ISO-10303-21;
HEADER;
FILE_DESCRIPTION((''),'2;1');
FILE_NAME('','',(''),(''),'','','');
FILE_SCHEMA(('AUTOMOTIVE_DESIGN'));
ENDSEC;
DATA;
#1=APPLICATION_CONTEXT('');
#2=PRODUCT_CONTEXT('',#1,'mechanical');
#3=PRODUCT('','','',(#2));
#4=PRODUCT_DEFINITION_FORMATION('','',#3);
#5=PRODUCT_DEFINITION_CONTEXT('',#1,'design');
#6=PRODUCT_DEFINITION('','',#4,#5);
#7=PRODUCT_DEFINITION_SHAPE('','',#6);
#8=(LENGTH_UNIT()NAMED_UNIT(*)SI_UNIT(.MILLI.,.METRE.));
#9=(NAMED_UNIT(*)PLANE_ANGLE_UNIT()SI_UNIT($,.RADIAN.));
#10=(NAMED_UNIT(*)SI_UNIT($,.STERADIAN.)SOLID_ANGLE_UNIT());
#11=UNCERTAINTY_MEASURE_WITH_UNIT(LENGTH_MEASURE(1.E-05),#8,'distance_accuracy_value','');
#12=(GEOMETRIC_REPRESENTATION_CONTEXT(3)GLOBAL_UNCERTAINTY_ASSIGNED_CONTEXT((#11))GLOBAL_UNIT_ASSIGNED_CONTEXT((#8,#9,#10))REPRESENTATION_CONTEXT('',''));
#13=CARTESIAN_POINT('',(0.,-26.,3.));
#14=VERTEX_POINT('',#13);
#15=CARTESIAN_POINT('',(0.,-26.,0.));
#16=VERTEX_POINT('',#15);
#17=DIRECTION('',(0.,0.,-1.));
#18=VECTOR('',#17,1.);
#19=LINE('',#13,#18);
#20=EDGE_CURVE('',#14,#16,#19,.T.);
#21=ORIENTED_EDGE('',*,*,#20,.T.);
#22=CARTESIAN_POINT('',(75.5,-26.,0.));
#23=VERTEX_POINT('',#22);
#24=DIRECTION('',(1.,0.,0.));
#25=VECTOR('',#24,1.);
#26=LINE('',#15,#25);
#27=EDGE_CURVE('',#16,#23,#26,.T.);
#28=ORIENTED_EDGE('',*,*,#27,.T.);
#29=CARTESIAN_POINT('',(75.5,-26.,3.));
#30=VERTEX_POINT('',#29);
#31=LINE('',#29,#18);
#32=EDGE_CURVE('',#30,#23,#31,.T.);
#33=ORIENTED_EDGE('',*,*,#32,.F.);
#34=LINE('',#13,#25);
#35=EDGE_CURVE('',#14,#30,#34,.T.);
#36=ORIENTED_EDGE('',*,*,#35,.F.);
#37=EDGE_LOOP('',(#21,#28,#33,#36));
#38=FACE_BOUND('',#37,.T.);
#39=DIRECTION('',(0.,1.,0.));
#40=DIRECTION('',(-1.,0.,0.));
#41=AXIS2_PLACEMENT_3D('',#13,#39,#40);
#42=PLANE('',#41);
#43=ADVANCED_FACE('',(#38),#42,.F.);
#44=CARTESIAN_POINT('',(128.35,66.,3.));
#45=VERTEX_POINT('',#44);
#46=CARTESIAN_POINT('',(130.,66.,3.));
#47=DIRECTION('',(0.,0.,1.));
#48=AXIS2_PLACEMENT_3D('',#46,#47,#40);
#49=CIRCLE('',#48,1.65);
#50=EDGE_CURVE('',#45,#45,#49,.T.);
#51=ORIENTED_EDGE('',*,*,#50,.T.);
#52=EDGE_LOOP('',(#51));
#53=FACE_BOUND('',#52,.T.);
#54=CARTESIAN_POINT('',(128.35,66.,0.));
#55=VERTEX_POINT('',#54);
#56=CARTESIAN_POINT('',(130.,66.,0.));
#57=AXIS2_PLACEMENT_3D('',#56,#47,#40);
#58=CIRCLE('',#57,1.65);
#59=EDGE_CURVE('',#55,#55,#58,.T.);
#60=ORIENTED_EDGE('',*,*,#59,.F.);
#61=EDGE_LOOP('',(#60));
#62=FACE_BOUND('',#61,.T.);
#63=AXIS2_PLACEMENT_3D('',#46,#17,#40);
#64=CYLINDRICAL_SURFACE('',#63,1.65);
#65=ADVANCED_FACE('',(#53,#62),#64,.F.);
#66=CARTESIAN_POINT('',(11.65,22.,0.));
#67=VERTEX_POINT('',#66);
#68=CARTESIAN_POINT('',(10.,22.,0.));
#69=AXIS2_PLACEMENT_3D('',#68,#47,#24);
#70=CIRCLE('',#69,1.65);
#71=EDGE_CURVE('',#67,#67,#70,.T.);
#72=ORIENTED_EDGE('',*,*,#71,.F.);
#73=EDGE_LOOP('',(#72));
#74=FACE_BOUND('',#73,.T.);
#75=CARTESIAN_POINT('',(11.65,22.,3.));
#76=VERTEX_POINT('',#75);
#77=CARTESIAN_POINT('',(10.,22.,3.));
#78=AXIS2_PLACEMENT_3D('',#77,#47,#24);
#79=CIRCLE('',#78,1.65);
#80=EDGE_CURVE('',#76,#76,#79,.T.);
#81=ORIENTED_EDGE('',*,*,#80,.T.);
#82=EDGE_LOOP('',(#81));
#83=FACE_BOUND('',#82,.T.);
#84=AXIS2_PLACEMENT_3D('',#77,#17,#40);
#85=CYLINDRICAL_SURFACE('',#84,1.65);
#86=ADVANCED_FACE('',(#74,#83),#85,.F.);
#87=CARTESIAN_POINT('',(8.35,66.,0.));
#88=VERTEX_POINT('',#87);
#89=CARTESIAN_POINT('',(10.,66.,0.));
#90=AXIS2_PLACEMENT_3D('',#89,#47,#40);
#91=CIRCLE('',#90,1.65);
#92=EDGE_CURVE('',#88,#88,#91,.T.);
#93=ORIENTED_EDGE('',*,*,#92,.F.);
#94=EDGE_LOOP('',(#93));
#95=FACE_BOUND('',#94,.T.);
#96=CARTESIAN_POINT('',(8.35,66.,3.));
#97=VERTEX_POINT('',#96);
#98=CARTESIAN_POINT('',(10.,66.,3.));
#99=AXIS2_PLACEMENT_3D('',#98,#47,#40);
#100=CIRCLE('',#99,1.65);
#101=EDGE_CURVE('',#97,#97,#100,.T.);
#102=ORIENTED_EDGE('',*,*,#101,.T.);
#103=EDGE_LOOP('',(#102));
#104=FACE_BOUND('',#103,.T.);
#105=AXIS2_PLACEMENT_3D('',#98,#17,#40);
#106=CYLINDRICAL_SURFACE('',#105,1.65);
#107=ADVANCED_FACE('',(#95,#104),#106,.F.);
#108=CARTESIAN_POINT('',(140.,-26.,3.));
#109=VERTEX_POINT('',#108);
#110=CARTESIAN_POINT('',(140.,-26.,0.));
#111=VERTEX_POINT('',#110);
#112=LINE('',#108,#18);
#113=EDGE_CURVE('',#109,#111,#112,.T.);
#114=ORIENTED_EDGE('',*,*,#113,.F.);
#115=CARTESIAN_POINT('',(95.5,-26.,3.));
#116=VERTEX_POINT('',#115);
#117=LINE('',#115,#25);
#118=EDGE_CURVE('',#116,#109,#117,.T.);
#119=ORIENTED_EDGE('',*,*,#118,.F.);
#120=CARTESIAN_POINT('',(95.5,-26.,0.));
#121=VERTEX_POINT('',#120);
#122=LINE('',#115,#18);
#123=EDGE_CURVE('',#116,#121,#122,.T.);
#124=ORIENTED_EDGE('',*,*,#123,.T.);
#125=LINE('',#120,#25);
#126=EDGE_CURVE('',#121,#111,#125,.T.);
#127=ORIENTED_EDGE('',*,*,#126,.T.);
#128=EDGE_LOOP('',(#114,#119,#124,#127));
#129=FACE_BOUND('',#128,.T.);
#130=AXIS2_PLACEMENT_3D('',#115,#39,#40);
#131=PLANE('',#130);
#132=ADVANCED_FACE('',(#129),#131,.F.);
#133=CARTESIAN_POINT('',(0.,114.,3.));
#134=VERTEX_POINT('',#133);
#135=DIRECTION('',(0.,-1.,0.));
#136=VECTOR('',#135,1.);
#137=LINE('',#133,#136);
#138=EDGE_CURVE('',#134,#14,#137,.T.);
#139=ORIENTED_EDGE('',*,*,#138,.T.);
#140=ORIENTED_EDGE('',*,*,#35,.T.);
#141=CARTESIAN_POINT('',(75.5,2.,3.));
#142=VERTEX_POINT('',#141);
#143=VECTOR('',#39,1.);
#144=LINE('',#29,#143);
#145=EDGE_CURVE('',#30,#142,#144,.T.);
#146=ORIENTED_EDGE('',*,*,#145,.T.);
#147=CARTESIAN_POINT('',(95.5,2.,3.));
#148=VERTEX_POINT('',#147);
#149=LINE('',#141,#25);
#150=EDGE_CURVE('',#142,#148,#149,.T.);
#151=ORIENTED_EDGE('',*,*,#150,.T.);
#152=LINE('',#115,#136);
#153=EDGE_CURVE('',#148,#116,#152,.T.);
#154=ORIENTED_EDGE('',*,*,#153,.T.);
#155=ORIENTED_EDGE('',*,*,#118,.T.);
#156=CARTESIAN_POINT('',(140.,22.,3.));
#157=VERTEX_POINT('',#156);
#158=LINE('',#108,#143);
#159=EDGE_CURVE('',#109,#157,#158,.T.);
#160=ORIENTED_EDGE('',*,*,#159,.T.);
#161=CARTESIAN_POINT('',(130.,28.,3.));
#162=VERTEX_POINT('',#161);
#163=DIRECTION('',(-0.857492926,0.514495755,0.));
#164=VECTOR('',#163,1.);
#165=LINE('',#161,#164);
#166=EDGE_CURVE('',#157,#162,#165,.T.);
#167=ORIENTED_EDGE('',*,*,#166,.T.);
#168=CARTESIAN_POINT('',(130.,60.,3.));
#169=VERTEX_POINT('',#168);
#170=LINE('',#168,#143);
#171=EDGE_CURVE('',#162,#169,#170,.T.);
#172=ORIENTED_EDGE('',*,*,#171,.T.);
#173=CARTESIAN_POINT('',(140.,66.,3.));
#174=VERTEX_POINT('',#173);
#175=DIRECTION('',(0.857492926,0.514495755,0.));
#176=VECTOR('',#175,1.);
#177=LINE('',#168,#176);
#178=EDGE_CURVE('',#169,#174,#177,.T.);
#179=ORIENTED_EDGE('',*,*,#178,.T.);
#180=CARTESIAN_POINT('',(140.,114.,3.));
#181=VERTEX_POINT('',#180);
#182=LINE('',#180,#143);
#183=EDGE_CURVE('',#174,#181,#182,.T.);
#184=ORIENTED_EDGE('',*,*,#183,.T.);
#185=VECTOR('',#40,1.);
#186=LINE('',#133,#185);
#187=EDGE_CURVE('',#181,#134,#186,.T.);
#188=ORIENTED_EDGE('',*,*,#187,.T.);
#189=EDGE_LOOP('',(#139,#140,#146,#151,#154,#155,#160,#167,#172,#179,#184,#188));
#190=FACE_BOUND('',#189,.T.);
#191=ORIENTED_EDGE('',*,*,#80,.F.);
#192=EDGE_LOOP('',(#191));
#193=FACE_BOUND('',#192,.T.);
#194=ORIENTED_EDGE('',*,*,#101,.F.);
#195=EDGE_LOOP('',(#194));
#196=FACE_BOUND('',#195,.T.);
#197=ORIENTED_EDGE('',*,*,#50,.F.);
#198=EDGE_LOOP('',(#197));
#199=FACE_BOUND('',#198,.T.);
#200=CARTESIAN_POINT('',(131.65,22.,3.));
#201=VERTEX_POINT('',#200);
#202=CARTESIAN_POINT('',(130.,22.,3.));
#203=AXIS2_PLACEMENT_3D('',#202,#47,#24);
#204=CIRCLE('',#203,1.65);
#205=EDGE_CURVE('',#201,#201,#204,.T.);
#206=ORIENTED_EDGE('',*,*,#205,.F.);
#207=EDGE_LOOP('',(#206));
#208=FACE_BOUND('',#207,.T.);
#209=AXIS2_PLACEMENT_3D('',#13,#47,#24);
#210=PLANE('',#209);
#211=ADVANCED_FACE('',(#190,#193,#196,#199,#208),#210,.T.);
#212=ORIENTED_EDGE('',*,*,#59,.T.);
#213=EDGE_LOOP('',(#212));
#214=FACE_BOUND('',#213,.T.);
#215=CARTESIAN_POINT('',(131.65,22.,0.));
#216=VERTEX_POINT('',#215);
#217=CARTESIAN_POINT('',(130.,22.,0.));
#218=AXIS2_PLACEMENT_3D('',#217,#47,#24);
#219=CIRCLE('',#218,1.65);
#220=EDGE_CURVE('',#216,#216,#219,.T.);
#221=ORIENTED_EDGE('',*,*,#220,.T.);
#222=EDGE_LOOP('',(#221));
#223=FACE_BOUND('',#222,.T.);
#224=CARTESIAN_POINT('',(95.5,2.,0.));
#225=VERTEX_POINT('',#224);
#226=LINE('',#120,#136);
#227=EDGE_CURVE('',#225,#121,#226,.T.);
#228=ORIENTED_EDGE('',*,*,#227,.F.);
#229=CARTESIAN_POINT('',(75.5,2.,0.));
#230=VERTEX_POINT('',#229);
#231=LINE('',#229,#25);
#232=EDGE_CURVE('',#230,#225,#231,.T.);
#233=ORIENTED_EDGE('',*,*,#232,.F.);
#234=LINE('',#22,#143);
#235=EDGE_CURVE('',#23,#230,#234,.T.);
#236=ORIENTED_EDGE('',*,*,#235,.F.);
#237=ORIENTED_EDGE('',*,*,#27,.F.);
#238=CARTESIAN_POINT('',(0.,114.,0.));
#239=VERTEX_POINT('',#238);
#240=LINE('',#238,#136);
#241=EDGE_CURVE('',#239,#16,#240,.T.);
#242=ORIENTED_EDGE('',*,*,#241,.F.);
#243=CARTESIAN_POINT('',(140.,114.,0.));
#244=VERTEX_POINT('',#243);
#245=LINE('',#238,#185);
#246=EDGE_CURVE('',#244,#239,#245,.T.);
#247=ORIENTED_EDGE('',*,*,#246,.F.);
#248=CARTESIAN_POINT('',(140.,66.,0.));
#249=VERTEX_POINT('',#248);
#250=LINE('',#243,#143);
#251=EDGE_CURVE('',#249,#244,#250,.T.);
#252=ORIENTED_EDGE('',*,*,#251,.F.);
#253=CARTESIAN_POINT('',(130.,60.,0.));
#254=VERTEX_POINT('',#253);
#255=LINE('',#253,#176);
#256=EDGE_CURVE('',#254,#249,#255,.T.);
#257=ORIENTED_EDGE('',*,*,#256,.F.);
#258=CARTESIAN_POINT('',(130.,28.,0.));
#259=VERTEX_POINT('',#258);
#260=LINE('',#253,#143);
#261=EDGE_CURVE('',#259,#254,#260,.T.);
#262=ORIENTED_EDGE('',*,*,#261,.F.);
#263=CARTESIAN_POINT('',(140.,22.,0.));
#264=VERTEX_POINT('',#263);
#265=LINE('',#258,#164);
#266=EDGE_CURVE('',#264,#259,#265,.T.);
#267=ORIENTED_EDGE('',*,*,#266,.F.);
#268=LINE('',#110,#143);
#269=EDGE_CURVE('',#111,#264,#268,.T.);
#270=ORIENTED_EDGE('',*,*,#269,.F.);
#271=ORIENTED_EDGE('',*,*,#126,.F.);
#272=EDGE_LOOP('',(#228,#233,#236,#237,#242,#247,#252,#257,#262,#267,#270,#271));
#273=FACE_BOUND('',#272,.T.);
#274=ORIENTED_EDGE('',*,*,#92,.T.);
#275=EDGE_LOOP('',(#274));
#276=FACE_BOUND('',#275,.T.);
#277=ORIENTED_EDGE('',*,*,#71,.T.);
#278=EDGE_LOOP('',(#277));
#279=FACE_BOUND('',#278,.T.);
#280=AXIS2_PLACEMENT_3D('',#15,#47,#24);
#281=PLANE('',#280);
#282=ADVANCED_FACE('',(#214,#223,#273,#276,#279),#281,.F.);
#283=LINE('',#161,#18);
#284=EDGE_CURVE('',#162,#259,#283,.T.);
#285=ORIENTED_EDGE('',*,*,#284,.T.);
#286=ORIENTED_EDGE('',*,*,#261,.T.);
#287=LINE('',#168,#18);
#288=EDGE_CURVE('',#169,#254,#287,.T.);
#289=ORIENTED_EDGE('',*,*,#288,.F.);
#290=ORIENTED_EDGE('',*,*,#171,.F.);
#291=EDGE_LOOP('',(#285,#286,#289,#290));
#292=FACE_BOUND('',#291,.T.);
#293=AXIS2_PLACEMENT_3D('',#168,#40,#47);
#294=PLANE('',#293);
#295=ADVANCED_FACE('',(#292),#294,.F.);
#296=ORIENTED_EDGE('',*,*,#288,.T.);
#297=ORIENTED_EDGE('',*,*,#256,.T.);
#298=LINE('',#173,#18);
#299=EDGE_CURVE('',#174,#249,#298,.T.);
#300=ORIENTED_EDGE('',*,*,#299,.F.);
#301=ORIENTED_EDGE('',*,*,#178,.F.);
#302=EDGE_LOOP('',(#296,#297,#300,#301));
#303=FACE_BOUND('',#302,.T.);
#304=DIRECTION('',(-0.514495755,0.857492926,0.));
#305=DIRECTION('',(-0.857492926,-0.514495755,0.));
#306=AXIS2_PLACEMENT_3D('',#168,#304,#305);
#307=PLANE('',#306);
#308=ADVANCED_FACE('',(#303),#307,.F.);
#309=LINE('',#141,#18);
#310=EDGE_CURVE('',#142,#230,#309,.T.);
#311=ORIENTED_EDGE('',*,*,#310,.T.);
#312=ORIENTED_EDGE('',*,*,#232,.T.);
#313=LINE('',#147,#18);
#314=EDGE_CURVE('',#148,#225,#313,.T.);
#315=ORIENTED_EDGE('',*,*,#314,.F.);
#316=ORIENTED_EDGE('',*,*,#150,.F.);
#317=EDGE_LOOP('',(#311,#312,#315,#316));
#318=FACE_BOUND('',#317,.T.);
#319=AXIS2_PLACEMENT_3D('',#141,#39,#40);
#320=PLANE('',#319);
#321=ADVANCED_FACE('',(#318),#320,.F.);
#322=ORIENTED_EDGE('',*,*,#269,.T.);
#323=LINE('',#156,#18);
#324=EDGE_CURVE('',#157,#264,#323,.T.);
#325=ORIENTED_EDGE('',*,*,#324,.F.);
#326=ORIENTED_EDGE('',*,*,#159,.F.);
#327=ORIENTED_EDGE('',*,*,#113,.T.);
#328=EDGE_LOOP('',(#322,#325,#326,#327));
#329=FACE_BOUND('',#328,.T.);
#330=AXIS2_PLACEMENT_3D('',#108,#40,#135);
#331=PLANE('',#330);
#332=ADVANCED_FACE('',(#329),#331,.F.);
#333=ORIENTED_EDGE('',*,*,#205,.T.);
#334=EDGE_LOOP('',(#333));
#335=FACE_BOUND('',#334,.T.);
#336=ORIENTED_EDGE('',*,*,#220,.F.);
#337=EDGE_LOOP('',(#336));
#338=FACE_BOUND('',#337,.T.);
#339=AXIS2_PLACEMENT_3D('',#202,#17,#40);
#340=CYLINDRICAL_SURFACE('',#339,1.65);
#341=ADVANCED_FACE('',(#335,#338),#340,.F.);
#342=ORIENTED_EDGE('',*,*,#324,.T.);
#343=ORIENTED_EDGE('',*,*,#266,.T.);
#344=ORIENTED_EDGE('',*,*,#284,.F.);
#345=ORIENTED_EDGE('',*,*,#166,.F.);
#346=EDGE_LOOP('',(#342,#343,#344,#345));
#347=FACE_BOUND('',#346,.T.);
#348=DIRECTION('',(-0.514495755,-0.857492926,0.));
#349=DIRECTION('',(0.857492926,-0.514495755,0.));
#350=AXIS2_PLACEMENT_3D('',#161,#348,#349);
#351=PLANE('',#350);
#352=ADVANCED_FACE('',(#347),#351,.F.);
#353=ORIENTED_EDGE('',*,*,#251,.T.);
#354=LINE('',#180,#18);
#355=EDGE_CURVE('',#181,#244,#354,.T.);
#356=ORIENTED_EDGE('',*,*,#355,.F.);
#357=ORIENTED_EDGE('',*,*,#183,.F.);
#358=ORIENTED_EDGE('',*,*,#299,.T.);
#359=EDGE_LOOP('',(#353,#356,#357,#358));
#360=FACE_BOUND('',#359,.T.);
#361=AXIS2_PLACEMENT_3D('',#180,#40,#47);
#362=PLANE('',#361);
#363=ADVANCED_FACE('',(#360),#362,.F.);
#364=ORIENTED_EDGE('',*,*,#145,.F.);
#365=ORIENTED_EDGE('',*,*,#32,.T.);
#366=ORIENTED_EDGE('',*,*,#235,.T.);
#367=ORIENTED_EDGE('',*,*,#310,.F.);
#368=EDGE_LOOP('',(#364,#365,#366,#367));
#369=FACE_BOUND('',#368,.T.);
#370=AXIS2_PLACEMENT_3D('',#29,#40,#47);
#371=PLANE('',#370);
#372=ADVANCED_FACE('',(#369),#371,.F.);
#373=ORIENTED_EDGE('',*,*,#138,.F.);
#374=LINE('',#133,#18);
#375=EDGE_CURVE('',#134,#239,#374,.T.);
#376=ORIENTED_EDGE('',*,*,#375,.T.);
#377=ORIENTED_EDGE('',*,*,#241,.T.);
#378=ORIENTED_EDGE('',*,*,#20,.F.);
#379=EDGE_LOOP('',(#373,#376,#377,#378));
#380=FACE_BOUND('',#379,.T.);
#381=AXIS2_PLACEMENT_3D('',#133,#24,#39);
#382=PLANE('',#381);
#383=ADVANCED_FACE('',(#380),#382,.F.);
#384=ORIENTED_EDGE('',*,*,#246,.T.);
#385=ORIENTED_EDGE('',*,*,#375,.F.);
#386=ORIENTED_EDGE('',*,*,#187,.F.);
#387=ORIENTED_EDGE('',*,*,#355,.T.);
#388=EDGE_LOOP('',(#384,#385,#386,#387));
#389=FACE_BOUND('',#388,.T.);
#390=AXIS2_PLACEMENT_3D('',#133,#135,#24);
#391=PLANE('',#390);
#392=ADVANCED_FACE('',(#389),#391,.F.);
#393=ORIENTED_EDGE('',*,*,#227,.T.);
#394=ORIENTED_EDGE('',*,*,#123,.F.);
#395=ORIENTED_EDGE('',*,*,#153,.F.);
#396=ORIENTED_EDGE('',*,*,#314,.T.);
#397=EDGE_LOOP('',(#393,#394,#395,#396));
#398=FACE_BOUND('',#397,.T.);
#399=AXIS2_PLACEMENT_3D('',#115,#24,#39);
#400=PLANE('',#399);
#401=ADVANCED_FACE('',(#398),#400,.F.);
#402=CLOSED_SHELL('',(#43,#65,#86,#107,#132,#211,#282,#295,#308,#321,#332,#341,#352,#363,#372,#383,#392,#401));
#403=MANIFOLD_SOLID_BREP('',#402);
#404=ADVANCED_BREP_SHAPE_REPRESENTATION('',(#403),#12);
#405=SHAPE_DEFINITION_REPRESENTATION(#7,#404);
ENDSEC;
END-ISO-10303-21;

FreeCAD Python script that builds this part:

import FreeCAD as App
import Part
import Sketcher
Q = App.Units.Quantity

doc = App.newDocument("Part")
body = doc.addObject("PartDesign::Body", "Body")

# Sketch on XY plane
sketch1 = body.newObject("Sketcher::SketchObject", "Sketch")
sketch1.AttachmentSupport = (doc.getObject("XY_Plane"), [""])
sketch1.MapMode = "FlatFace"
sketch1.addGeometry(Part.LineSegment(App.Vector(0, -26, 0), App.Vector(75.5, -26, 0)), False)
sketch1.addGeometry(Part.LineSegment(App.Vector(75.5, -26, 0), App.Vector(75.5, 2, 0)), False)
sketch1.addGeometry(Part.LineSegment(App.Vector(75.5, 2, 0), App.Vector(95.5, 2, 0)), False)
sketch1.addGeometry(Part.LineSegment(App.Vector(95.5, 2, 0), App.Vector(95.5, -26, 0)), False)
sketch1.addGeometry(Part.LineSegment(App.Vector(95.5, -26, 0), App.Vector(140, -26, 0)), False)
sketch1.addGeometry(Part.LineSegment(App.Vector(140, -26, 0), App.Vector(140, 22, 0)), False)
sketch1.addGeometry(Part.LineSegment(App.Vector(140, 22, 0), App.Vector(130, 28, 0)), False)
sketch1.addGeometry(Part.LineSegment(App.Vector(130, 28, 0), App.Vector(130, 60, 0)), False)
sketch1.addGeometry(Part.LineSegment(App.Vector(130, 60, 0), App.Vector(140, 66, 0)), False)
sketch1.addGeometry(Part.LineSegment(App.Vector(140, 66, 0), App.Vector(140, 114, 0)), False)
sketch1.addGeometry(Part.LineSegment(App.Vector(140, 114, 0), App.Vector(0, 114, 0)), False)
sketch1.addGeometry(Part.LineSegment(App.Vector(0, 114, 0), App.Vector(0, -26, 0)), False)
sketch1.addGeometry(Part.Circle(App.Vector(10, 22, 0), App.Vector(0, 0, 1), 1.65), False)
sketch1.addGeometry(Part.Circle(App.Vector(130, 22, 0), App.Vector(0, 0, 1), 1.65), False)
sketch1.addGeometry(Part.Circle(App.Vector(10, 66, 0), App.Vector(0, 0, 1), 1.65), False)
sketch1.addGeometry(Part.Circle(App.Vector(130, 66, 0), App.Vector(0, 0, 1), 1.65), False)
sketch1.addConstraint(Sketcher.Constraint("Coincident", 0, 2, 1, 1))
sketch1.addConstraint(Sketcher.Constraint("Coincident", 1, 2, 2, 1))
sketch1.addConstraint(Sketcher.Constraint("Coincident", 2, 2, 3, 1))
sketch1.addConstraint(Sketcher.Constraint("Coincident", 3, 2, 4, 1))
sketch1.addConstraint(Sketcher.Constraint("Coincident", 4, 2, 5, 1))
sketch1.addConstraint(Sketcher.Constraint("Coincident", 5, 2, 6, 1))
sketch1.addConstraint(Sketcher.Constraint("Coincident", 6, 2, 7, 1))
sketch1.addConstraint(Sketcher.Constraint("Coincident", 7, 2, 8, 1))
sketch1.addConstraint(Sketcher.Constraint("Coincident", 8, 2, 9, 1))
sketch1.addConstraint(Sketcher.Constraint("Coincident", 9, 2, 10, 1))
sketch1.addConstraint(Sketcher.Constraint("Coincident", 10, 2, 11, 1))
sketch1.addConstraint(Sketcher.Constraint("Coincident", 11, 2, 0, 1))
sketch1.addConstraint(Sketcher.Constraint("Horizontal", 0))
sketch1.addConstraint(Sketcher.Constraint("Vertical", 1))
sketch1.addConstraint(Sketcher.Constraint("Horizontal", 2))
sketch1.addConstraint(Sketcher.Constraint("Vertical", 3))
sketch1.addConstraint(Sketcher.Constraint("Horizontal", 4))
sketch1.addConstraint(Sketcher.Constraint("Vertical", 5))
sketch1.addConstraint(Sketcher.Constraint("Vertical", 7))
sketch1.addConstraint(Sketcher.Constraint("Vertical", 9))
sketch1.addConstraint(Sketcher.Constraint("Horizontal", 10))
sketch1.addConstraint(Sketcher.Constraint("Vertical", 11))
sketch1.addConstraint(Sketcher.Constraint("Equal", 12, 13))
sketch1.addConstraint(Sketcher.Constraint("Equal", 13, 14))
sketch1.addConstraint(Sketcher.Constraint("Equal", 14, 15))
sketch1.addConstraint(Sketcher.Constraint("PointOnObject", 10, 2, -2))
sketch1.addConstraint(Sketcher.Constraint("Horizontal", 12, 3, 13, 3))
sketch1.addConstraint(Sketcher.Constraint("Horizontal", 14, 3, 15, 3))
sketch1.addConstraint(Sketcher.Constraint("Horizontal", 0, 2, 3, 2))
sketch1.addConstraint(Sketcher.Constraint("Horizontal", 13, 3, 5, 2))
sketch1.addConstraint(Sketcher.Constraint("Horizontal", 15, 3, 8, 2))
sketch1.addConstraint(Sketcher.Constraint("Vertical", 12, 3, 14, 3))
sketch1.addConstraint(Sketcher.Constraint("Vertical", 13, 3, 15, 3))
sketch1.addConstraint(Sketcher.Constraint("Vertical", 15, 3, 6, 2))
sketch1.addConstraint(Sketcher.Constraint("Vertical", 5, 2, 8, 2))
sketch1.addConstraint(Sketcher.Constraint("Equal", 5, 9))
sketch1.addConstraint(Sketcher.Constraint("Equal", 10, 11))
sketch1.addConstraint(Sketcher.Constraint("Equal", 6, 8))
sketch1.addConstraint(Sketcher.Constraint("Diameter", 12, Q("3.3 mm")))
sketch1.addConstraint(Sketcher.Constraint("DistanceX", 2, 1, 2, 2, Q("20 mm")))
sketch1.addConstraint(Sketcher.Constraint("DistanceX", 10, 2, 10, 1, Q("140 mm")))
sketch1.addConstraint(Sketcher.Constraint("DistanceY", 1, 1, 1, 2, Q("28 mm")))
sketch1.addConstraint(Sketcher.Constraint("DistanceY", 5, 1, 5, 2, Q("48 mm")))
sketch1.addConstraint(Sketcher.Constraint("DistanceY", 7, 1, 7, 2, Q("32 mm")))
sketch1.addConstraint(Sketcher.Constraint("DistanceX", 0, 1, 0, 2, Q("75.5 mm")))
sketch1.addConstraint(Sketcher.Constraint("DistanceX", -1, 1, 12, 3, Q("10 mm")))
sketch1.addConstraint(Sketcher.Constraint("DistanceY", -1, 1, 12, 3, Q("22 mm")))
sketch1.addConstraint(Sketcher.Constraint("DistanceX", -1, 1, 13, 3, Q("130 mm")))
pad1 = body.newObject("PartDesign::Pad", "Pad")
pad1.Profile = sketch1
pad1.Length = 3

doc.recompute()
